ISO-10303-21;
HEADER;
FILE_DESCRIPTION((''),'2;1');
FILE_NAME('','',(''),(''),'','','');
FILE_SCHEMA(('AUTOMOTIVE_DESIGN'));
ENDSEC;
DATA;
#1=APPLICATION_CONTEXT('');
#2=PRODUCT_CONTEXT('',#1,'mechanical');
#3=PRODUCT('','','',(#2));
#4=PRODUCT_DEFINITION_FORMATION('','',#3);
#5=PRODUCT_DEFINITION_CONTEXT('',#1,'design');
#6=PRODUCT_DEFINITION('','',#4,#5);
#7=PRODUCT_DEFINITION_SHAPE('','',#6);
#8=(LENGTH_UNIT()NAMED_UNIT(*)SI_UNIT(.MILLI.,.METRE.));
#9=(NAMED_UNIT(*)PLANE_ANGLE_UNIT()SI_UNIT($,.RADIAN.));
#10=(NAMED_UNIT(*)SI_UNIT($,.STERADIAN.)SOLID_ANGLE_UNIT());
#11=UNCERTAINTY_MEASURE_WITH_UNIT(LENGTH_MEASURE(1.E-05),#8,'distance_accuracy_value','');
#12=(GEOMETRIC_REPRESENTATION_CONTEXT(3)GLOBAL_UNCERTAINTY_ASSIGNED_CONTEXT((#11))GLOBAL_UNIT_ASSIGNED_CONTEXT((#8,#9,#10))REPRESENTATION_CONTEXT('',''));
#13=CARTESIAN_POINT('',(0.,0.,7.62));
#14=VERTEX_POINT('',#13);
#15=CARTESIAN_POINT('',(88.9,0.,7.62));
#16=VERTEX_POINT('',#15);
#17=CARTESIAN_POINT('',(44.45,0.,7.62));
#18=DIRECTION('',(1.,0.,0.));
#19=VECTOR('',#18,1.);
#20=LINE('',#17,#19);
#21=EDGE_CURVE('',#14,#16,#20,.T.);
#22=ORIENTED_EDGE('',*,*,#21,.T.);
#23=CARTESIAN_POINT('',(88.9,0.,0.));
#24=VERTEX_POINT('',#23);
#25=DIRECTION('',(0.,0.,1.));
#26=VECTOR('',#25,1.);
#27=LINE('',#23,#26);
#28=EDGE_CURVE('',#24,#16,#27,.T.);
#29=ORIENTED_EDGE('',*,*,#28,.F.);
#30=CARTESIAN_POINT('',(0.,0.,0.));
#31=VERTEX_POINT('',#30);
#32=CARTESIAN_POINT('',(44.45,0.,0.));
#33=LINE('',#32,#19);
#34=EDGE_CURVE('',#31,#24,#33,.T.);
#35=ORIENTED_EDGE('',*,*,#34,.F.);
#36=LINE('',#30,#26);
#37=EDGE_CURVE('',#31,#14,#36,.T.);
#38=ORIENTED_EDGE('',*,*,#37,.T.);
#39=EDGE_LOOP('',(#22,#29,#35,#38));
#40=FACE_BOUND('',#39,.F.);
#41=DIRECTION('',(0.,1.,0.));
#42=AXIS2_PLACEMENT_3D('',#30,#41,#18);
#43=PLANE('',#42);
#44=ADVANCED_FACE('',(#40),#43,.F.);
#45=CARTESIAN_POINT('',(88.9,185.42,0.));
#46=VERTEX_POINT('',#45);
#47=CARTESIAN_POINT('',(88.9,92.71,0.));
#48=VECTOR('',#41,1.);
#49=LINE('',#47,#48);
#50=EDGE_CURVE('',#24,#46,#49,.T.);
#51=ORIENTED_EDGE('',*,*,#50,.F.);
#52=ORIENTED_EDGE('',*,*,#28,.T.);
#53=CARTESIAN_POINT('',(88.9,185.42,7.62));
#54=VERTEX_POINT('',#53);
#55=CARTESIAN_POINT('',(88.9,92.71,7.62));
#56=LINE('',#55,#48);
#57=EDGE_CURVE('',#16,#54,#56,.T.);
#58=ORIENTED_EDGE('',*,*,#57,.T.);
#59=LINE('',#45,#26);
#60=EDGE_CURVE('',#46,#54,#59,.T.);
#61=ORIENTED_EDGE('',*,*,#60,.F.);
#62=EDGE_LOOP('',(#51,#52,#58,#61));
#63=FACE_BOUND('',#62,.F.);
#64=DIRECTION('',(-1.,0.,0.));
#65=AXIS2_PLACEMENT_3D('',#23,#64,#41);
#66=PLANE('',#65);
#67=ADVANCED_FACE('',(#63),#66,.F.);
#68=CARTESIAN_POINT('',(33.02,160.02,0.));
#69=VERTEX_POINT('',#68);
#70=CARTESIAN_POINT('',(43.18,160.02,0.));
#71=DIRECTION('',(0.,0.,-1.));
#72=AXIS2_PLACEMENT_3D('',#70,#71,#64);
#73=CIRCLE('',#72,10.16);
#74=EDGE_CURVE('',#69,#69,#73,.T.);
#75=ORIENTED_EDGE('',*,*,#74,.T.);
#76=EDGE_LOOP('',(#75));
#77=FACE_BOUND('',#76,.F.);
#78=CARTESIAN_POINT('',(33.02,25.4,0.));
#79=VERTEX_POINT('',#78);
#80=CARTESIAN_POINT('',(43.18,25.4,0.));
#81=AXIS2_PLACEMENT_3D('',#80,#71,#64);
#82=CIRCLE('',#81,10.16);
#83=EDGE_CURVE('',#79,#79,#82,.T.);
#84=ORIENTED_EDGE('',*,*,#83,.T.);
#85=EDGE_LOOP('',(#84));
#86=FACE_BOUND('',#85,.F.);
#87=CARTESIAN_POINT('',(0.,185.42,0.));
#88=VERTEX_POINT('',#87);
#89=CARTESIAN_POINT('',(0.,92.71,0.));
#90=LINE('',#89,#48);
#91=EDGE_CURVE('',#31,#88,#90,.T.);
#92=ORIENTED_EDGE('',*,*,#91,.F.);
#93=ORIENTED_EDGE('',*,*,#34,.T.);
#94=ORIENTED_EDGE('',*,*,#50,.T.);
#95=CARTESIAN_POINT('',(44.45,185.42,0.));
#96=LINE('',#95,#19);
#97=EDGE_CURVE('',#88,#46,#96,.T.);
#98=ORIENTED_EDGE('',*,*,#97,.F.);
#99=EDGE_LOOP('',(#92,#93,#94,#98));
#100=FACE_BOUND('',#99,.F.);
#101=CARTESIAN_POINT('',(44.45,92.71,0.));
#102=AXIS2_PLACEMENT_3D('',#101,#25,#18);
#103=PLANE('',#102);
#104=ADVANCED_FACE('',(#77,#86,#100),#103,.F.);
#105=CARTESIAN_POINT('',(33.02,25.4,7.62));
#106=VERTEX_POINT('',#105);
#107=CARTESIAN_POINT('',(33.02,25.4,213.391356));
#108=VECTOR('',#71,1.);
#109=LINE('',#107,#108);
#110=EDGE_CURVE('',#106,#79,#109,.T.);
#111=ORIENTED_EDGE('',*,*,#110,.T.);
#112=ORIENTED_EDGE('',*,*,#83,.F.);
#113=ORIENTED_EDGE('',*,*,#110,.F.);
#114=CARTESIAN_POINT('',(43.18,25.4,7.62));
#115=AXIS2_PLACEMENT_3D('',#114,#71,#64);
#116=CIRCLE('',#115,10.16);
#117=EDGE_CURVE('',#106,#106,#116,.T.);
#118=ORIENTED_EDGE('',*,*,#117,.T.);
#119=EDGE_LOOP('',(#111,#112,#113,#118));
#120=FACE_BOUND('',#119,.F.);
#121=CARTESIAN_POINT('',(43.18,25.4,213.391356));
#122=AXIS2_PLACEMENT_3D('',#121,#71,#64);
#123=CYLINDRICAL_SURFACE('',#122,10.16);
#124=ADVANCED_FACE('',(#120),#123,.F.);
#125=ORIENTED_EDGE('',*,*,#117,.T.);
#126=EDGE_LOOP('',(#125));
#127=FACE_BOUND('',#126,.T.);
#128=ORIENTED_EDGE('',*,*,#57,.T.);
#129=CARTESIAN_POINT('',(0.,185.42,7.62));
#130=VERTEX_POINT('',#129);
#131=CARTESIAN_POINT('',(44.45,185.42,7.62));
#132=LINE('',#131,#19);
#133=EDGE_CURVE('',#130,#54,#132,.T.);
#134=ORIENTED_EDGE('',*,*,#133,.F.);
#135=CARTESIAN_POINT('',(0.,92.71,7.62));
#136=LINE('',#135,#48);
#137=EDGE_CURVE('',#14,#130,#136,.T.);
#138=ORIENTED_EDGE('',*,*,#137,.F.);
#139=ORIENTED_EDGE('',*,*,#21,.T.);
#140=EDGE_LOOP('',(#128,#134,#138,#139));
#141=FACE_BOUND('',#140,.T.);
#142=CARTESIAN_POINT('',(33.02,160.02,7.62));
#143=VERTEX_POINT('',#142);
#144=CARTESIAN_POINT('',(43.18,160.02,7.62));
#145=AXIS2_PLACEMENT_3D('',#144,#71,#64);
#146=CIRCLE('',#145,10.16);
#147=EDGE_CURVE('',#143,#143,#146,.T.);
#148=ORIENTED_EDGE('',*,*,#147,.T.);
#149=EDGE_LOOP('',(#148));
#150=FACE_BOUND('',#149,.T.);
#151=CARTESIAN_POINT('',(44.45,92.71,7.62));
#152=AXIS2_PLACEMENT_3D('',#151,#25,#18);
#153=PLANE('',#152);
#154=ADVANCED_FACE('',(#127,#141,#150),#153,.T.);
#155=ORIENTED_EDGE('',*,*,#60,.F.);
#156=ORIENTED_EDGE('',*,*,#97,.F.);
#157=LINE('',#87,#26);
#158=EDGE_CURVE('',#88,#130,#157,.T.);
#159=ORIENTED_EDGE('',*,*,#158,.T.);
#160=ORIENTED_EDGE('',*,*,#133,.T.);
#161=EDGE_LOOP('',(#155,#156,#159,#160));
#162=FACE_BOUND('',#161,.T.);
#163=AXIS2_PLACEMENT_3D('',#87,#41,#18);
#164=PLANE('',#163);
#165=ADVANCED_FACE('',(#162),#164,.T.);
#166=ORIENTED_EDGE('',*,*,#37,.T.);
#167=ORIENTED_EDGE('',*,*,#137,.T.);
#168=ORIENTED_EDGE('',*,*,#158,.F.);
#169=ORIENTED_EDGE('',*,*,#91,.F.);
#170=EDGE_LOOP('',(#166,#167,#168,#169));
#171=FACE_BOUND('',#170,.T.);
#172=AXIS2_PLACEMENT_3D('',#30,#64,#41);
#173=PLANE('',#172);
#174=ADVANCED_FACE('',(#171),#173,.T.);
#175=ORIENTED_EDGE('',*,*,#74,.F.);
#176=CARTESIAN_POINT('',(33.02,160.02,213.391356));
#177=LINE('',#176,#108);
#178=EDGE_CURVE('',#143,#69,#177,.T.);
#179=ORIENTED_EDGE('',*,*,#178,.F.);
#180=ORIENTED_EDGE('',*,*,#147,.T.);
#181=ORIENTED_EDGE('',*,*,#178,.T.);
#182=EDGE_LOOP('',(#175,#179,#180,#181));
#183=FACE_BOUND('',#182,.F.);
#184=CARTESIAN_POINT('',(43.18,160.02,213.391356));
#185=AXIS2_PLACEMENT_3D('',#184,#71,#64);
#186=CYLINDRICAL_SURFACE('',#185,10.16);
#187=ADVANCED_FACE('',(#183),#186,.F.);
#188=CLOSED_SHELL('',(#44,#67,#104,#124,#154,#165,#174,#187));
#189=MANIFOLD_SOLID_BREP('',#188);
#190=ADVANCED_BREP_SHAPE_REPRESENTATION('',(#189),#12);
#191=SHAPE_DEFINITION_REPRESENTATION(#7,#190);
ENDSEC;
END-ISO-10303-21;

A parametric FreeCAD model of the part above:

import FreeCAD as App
import Part
import Sketcher
Q = App.Units.Quantity

doc = App.newDocument("Part")
body = doc.addObject("PartDesign::Body", "Body")

sketch1 = doc.addObject("Sketcher::SketchObject", "Sketch")
body.addObject(sketch1)
sketch1.AttachmentSupport = (doc.XY_Plane, [""])
sketch1.MapMode = "FlatFace"
sketch1.addGeometry([
    Part.LineSegment(App.Vector(0, 185, 0), App.Vector(0, 0, 0)),
    Part.LineSegment(App.Vector(0, 0, 0), App.Vector(89, 0, 0)),
    Part.LineSegment(App.Vector(89, 0, 0), App.Vector(89, 185, 0)),
    Part.LineSegment(App.Vector(89, 185, 0), App.Vector(0, 185, 0)),
], False)
sketch1.addConstraint([
    Sketcher.Constraint("Coincident", 0, 2, 1, 1),
    Sketcher.Constraint("Coincident", 1, 2, 2, 1),
    Sketcher.Constraint("Coincident", 2, 2, 3, 1),
    Sketcher.Constraint("Coincident", 3, 2, 0, 1),
    Sketcher.Constraint("Vertical", 0),
    Sketcher.Constraint("Horizontal", 1),
    Sketcher.Constraint("Vertical", 2),
    Sketcher.Constraint("Horizontal", 3),
    Sketcher.Constraint("Coincident", 0, 2, -1, 1),
    Sketcher.Constraint("DistanceX", 1, 1, 1, 2, Q("3.5 in")),
    Sketcher.Constraint("DistanceY", 0, 2, 0, 1, Q("7.3 in")),
])
pad1 = doc.addObject("PartDesign::Pad", "Pad")
body.addObject(pad1)
pad1.Profile = sketch1
pad1.Length = Q("0.3 in")

sketch2 = doc.addObject("Sketcher::SketchObject", "Sketch001")
body.addObject(sketch2)
sketch2.AttachmentSupport = (doc.XY_Plane, [""])
sketch2.MapMode = "FlatFace"
sketch2.AttachmentOffset = App.Placement(App.Vector(0, 0, 0.3 * 25.4), App.Rotation())
sketch2.addGeometry([
    Part.Circle(App.Vector(43, 160, 0), App.Vector(0, 0, 1), 10),
    Part.Circle(App.Vector(43, 25, 0), App.Vector(0, 0, 1), 10),
], False)
sketch2.addConstraint([
    Sketcher.Constraint("Equal", 0, 1),
    Sketcher.Constraint("Vertical", 0, 3, 1, 3),
    Sketcher.Constraint("Diameter", 0, Q("0.8 in")),
    Sketcher.Constraint("DistanceY", -1, 1, 1, 3, Q("1 in")),
    Sketcher.Constraint("DistanceX", -1, 1, 0, 3, Q("1.7 in")),
    Sketcher.Constraint("DistanceY", -1, 1, 0, 3, Q("6.3 in")),
])
doc.recompute()
hole = doc.addObject("PartDesign::Hole", "Hole")
body.addObject(hole)
hole.Profile = sketch2
hole.ThreadType = "None"
hole.Diameter = Q("0.8 in")
hole.DepthType = "ThroughAll"

doc.recompute()
